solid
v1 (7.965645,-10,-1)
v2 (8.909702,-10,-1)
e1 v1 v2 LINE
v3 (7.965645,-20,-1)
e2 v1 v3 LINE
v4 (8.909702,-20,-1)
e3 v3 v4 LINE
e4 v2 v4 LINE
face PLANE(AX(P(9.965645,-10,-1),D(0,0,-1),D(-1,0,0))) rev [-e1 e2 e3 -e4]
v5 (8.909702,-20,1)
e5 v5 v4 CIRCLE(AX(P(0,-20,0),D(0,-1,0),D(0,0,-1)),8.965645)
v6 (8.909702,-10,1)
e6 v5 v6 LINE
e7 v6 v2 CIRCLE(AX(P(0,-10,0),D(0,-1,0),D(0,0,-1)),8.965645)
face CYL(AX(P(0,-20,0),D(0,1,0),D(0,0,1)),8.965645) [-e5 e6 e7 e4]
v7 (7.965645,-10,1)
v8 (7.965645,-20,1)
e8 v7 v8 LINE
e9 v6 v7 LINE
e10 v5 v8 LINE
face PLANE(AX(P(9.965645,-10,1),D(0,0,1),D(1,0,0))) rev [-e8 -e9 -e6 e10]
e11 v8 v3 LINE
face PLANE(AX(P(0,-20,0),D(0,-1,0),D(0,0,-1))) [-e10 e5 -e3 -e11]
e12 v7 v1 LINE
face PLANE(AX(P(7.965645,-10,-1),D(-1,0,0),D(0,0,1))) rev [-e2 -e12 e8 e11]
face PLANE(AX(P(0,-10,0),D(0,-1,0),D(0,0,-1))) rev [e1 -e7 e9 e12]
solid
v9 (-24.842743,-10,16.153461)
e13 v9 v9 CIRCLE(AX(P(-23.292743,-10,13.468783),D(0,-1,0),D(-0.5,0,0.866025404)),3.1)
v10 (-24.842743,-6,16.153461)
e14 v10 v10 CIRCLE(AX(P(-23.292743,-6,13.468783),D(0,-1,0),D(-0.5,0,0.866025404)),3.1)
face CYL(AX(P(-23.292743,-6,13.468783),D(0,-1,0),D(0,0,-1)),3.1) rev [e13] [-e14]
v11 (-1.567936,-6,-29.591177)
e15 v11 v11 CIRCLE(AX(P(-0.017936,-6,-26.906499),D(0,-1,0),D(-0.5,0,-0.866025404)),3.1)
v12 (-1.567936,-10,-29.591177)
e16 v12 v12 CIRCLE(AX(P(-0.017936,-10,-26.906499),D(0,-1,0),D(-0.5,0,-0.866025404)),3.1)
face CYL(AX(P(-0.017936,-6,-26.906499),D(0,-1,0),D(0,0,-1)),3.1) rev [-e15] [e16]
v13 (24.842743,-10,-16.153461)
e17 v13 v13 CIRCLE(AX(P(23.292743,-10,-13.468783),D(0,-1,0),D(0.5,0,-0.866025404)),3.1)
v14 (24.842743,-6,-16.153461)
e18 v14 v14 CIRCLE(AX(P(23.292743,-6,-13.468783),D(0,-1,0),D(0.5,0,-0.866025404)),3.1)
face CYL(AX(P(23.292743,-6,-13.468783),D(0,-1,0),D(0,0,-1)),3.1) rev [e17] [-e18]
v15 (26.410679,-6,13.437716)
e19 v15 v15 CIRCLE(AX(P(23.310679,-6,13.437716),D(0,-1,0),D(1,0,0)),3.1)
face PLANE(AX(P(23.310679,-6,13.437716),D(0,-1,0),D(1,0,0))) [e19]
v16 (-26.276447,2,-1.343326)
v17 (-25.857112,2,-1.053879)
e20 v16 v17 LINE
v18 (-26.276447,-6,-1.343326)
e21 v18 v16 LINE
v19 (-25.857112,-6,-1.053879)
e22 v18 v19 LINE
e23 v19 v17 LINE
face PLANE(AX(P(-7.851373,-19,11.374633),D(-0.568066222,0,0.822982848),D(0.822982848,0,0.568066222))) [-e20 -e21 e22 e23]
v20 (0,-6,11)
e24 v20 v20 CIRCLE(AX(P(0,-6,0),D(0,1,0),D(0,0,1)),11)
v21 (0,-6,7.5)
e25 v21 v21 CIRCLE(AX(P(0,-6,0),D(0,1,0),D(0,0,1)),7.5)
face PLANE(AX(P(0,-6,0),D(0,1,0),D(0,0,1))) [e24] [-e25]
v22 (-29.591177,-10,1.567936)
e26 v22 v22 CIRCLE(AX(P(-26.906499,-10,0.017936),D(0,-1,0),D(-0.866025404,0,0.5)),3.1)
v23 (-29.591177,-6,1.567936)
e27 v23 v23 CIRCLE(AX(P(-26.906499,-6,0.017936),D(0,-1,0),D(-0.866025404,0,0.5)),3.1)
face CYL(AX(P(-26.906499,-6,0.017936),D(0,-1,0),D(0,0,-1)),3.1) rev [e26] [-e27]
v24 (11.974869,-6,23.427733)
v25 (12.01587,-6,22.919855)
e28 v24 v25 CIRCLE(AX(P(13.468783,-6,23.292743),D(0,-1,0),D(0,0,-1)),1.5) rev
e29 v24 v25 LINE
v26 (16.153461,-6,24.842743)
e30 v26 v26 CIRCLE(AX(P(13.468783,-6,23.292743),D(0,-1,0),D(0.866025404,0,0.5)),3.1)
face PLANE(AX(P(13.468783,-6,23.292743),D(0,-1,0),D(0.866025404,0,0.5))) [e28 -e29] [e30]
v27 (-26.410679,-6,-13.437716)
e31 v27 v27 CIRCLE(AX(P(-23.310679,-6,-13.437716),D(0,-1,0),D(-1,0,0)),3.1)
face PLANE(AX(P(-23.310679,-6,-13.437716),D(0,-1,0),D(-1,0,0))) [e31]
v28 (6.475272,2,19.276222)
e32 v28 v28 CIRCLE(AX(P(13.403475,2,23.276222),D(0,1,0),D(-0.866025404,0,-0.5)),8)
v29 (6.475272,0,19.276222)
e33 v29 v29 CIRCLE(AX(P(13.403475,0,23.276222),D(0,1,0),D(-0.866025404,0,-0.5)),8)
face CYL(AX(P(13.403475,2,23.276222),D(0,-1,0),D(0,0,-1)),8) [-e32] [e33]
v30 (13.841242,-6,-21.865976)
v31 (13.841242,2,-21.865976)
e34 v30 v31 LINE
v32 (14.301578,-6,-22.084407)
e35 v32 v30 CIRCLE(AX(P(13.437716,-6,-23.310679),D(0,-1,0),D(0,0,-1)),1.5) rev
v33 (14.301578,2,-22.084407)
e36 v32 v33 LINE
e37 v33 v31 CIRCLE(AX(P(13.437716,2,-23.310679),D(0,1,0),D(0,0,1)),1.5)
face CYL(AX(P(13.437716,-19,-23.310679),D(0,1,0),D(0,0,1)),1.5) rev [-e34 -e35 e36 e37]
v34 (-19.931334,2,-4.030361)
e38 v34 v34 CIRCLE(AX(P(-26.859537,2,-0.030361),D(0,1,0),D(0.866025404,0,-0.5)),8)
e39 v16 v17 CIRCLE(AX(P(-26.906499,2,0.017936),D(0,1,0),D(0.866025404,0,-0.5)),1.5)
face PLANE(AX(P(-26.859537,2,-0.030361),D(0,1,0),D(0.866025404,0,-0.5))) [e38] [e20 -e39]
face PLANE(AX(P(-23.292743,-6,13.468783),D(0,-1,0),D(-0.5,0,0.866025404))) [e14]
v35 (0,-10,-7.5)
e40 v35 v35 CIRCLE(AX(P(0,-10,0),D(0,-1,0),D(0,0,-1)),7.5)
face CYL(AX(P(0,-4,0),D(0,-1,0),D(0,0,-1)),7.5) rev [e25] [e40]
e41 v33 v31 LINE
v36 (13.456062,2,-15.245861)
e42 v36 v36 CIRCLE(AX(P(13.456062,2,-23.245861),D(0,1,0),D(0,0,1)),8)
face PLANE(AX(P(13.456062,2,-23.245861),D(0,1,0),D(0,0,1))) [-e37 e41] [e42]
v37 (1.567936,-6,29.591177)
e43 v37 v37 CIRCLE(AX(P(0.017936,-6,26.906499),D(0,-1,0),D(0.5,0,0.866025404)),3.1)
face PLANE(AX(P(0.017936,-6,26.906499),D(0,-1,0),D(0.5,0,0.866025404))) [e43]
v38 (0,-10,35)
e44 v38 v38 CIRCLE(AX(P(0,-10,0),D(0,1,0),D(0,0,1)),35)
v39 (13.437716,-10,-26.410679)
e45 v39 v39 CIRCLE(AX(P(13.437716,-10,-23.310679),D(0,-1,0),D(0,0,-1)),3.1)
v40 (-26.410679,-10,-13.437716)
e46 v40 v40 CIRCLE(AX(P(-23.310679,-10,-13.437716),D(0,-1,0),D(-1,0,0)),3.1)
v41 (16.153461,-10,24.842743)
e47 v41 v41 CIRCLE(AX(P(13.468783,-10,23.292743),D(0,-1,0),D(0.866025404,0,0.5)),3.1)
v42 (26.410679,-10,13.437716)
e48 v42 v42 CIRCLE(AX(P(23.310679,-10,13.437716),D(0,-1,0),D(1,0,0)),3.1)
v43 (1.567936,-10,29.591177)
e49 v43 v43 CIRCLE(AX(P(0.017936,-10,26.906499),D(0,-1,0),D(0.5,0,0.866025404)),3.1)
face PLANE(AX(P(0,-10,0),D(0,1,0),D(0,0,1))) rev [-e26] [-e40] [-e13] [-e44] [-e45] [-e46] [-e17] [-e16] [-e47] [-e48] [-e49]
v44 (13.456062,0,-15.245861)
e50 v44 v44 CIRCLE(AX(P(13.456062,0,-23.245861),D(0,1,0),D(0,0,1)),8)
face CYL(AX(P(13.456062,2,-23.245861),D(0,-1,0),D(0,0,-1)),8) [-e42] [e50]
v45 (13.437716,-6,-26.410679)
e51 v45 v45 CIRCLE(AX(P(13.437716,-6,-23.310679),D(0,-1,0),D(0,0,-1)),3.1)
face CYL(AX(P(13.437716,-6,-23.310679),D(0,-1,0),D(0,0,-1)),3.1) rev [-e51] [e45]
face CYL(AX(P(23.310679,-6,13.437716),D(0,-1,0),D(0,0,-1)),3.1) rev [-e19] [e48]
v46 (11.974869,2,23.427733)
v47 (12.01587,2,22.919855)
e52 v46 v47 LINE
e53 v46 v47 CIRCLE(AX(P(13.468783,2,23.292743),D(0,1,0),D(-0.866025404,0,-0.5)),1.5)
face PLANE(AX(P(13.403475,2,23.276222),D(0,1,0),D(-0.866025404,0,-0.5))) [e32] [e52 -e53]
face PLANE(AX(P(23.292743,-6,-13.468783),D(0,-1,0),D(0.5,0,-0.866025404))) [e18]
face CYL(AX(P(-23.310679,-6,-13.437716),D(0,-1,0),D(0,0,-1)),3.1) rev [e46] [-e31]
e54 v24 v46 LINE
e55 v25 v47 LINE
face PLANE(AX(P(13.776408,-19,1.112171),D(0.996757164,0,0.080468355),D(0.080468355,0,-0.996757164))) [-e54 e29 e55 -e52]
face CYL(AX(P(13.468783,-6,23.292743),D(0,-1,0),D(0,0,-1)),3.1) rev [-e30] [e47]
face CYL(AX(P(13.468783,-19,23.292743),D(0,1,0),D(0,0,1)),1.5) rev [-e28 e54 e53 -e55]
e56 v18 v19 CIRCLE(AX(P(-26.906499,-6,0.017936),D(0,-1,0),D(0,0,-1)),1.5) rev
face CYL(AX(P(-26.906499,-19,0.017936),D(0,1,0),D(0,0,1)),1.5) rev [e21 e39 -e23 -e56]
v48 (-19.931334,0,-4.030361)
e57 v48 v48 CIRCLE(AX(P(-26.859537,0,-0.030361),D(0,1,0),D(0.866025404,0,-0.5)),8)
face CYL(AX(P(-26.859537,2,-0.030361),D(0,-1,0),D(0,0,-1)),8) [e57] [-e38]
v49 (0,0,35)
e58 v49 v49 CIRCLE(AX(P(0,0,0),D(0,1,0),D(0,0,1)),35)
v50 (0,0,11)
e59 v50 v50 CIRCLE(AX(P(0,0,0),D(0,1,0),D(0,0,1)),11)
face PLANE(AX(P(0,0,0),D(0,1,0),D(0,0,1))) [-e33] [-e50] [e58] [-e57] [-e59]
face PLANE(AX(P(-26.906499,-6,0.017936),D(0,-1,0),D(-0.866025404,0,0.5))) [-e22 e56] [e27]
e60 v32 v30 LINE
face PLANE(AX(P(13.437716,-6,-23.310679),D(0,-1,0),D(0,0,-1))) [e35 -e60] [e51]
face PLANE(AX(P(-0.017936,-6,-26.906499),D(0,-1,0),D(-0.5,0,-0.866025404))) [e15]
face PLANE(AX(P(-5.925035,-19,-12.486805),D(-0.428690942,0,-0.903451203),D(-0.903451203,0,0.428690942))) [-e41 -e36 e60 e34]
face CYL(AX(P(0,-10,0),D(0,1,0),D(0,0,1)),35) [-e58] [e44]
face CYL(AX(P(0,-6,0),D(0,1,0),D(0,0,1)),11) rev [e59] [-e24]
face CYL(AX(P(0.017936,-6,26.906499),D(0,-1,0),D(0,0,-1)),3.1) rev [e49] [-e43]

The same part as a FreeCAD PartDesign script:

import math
import FreeCAD as App
import Part
import Sketcher
Q = App.Units.Quantity

doc = App.newDocument("Part")
body = doc.addObject("PartDesign::Body", "Body")

# Sketch on XZ plane
sketch1 = body.newObject("Sketcher::SketchObject", "Sketch")
sketch1.AttachmentSupport = (doc.getObject("XZ_Plane"), [""])
sketch1.MapMode = "FlatFace"
sketch1.addGeometry(Part.Circle(App.Vector(0, 0, 0), App.Vector(0, 0, 1), 35), False)
sketch1.addConstraint(Sketcher.Constraint("Coincident", 0, 3, -1, 1))
sketch1.addConstraint(Sketcher.Constraint("Diameter", 0, Q("70 mm")))
pad1 = body.newObject("PartDesign::Pad", "Pad")
pad1.Profile = sketch1
pad1.Length = 10

# Sketch on XZ plane
sketch2 = body.newObject("Sketcher::SketchObject", "Sketch001")
sketch2.AttachmentSupport = (doc.getObject("XZ_Plane"), [""])
sketch2.MapMode = "FlatFace"
sketch2.addGeometry(Part.Circle(App.Vector(0, 0, 0), App.Vector(0, 0, 1), 11), False)
sketch2.addConstraint(Sketcher.Constraint("Coincident", 0, 3, -1, 1))
sketch2.addConstraint(Sketcher.Constraint("Diameter", 0, Q("22 mm")))
pocket1 = body.newObject("PartDesign::Pocket", "Pocket")
pocket1.Profile = sketch2
pocket1.Length = 6
pocket1.Reversed = True

# Sketch on XZ plane
sketch3 = body.newObject("Sketcher::SketchObject", "Sketch002")
sketch3.AttachmentSupport = (doc.getObject("XZ_Plane"), [""])
sketch3.MapMode = "FlatFace"
sketch3.AttachmentOffset = App.Placement(App.Vector(0, 0, 10), App.Rotation())
sketch3.addGeometry(Part.Circle(App.Vector(0, 0, 0), App.Vector(0, 0, 1), 8), False)
sketch3.addConstraint(Sketcher.Constraint("Coincident", 0, 3, -1, 1))
sketch3.addConstraint(Sketcher.Constraint("Diameter", 0, Q("15 mm")))
pocket2 = body.newObject("PartDesign::Pocket", "Pocket001")
pocket2.Profile = sketch3
pocket2.Length = 6

# Sketch on XZ plane
sketch4 = body.newObject("Sketcher::SketchObject", "Sketch003")
sketch4.AttachmentSupport = (doc.getObject("XZ_Plane"), [""])
sketch4.MapMode = "FlatFace"
sketch4.addGeometry(Part.Circle(App.Vector(13, -23, 0), App.Vector(0, 0, 1), 8), False)
sketch4.addConstraint(Sketcher.Constraint("Diameter", 0, Q("16 mm")))
sketch4.addConstraint(Sketcher.Constraint("DistanceY", 0, 3, -1, 1, Q("23.245861 mm")))
sketch4.addConstraint(Sketcher.Constraint("DistanceX", -1, 1, 0, 3, Q("13.456062 mm")))
pad2 = body.newObject("PartDesign::Pad", "Pad001")
pad2.Profile = sketch4
pad2.Length = 2
pad2.Reversed = True

# Sketch on XZ plane
sketch5 = body.newObject("Sketcher::SketchObject", "Sketch004")
sketch5.AttachmentSupport = (doc.getObject("XZ_Plane"), [""])
sketch5.MapMode = "FlatFace"
sketch5.AttachmentOffset = App.Placement(App.Vector(0, 0, -2), App.Rotation())
sketch5.addGeometry(Part.LineSegment(App.Vector(13.8, -21.9, 0), App.Vector(14.3, -22.1, 0)), False)
sketch5.addGeometry(Part.ArcOfCircle(Part.Circle(App.Vector(13.4, -23.3, 0), App.Vector(0, 0, 1), 1.5), math.radians(0), math.radians(55)), False)
sketch5.addGeometry(Part.ArcOfCircle(Part.Circle(App.Vector(13.4, -23.3, 0), App.Vector(0, 0, 1), 1.5), math.radians(74), math.radians(360)), False)
sketch5.addConstraint(Sketcher.Constraint("Coincident", 0, 2, 1, 2))
sketch5.addConstraint(Sketcher.Constraint("Tangent", 1, 1, 2, 2))
sketch5.addConstraint(Sketcher.Constraint("Coincident", 2, 1, 0, 1))
sketch5.addConstraint(Sketcher.Constraint("Equal", 1, 2))
sketch5.addConstraint(Sketcher.Constraint("Horizontal", 2, 3, 1, 1))
sketch5.addConstraint(Sketcher.Constraint("Radius", 1, Q("1.5 mm")))
sketch5.addConstraint(Sketcher.Constraint("Distance", 0, Q("0.50953 mm")))
sketch5.addConstraint(Sketcher.Constraint("DistanceY", 1, 3, -1, 1, Q("23.310679 mm")))
sketch5.addConstraint(Sketcher.Constraint("DistanceX", -1, 1, 2, 1, Q("13.841242 mm")))
sketch5.addConstraint(Sketcher.Constraint("DistanceX", 1, 3, 0, 2, Q("0.863862 mm")))
pocket3 = body.newObject("PartDesign::Pocket", "Pocket002")
pocket3.Profile = sketch5
pocket3.Length = 21
pocket3.Reversed = True

# Sketch on XZ plane
sketch6 = body.newObject("Sketcher::SketchObject", "Sketch005")
sketch6.AttachmentSupport = (doc.getObject("XZ_Plane"), [""])
sketch6.MapMode = "FlatFace"
sketch6.AttachmentOffset = App.Placement(App.Vector(0, 0, 10), App.Rotation())
sketch6.addGeometry(Part.Circle(App.Vector(13.4, -23.3, 0), App.Vector(0, 0, 1), 3.1), False)
sketch6.addConstraint(Sketcher.Constraint("Diameter", 0, Q("6.2 mm")))
sketch6.addConstraint(Sketcher.Constraint("DistanceY", 0, 3, -1, 1, Q("23.310679 mm")))
sketch6.addConstraint(Sketcher.Constraint("DistanceX", -1, 1, 0, 3, Q("13.437716 mm")))
pocket4 = body.newObject("PartDesign::Pocket", "Pocket003")
pocket4.Profile = sketch6
pocket4.Length = 4
doc.recompute()

polarpattern = body.newObject("PartDesign::PolarPattern", "PolarPattern")
polarpattern.Originals = [pad2]
polarpattern.Axis = (doc.getObject("Y_Axis"), [""])
polarpattern.Angle = 360
polarpattern.Occurrences = 3
body.Tip = polarpattern
doc.recompute()

polarpattern2 = body.newObject("PartDesign::PolarPattern", "PolarPattern001")
polarpattern2.Originals = [pocket3]
polarpattern2.Axis = (doc.getObject("Y_Axis"), [""])
polarpattern2.Angle = 360
polarpattern2.Occurrences = 3
body.Tip = polarpattern2
doc.recompute()

polarpattern3 = body.newObject("PartDesign::PolarPattern", "PolarPattern002")
polarpattern3.Originals = [pocket4]
polarpattern3.Axis = (doc.getObject("Y_Axis"), [""])
polarpattern3.Angle = 30
polarpattern3.Occurrences = 2
body.Tip = polarpattern3
doc.recompute()

polarpattern4 = body.newObject("PartDesign::PolarPattern", "PolarPattern003")
polarpattern4.Originals = [pocket4]
polarpattern4.Axis = (doc.getObject("Y_Axis"), [""])
polarpattern4.Angle = 30
polarpattern4.Occurrences = 2
polarpattern4.Reversed = True
body.Tip = polarpattern4
doc.recompute()

polarpattern5 = body.newObject("PartDesign::PolarPattern", "PolarPattern004")
polarpattern5.Originals = [pocket4]
polarpattern5.Axis = (doc.getObject("Y_Axis"), [""])
polarpattern5.Angle = 360
polarpattern5.Occurrences = 3
body.Tip = polarpattern5

# Sketch on XZ plane
sketch7 = body.newObject("Sketcher::SketchObject", "Sketch006")
sketch7.AttachmentSupport = (doc.getObject("XZ_Plane"), [""])
sketch7.MapMode = "FlatFace"
sketch7.AttachmentOffset = App.Placement(App.Vector(0, 0, 10), App.Rotation())
sketch7.addGeometry(Part.Circle(App.Vector(-23.3, 13.5, 0), App.Vector(0, 0, 1), 3.1), False)
sketch7.addConstraint(Sketcher.Constraint("Diameter", 0, Q("6.2 mm")))
sketch7.addConstraint(Sketcher.Constraint("DistanceX", 0, 3, -1, 1, Q("23.292743 mm")))
sketch7.addConstraint(Sketcher.Constraint("DistanceY", -1, 1, 0, 3, Q("13.468783 mm")))
pocket5 = body.newObject("PartDesign::Pocket", "Pocket004")
pocket5.Profile = sketch7
pocket5.Length = 4

# Sketch on XZ plane
sketch8 = body.newObject("Sketcher::SketchObject", "Sketch007")
sketch8.AttachmentSupport = (doc.getObject("XZ_Plane"), [""])
sketch8.MapMode = "FlatFace"
sketch8.AttachmentOffset = App.Placement(App.Vector(0, 0, 10), App.Rotation())
sketch8.addGeometry(Part.Circle(App.Vector(23.3, 13.4, 0), App.Vector(0, 0, 1), 3.1), False)
sketch8.addConstraint(Sketcher.Constraint("Diameter", 0, Q("6.2 mm")))
sketch8.addConstraint(Sketcher.Constraint("DistanceX", -1, 1, 0, 3, Q("23.310679 mm")))
sketch8.addConstraint(Sketcher.Constraint("DistanceY", -1, 1, 0, 3, Q("13.437716 mm")))
pocket6 = body.newObject("PartDesign::Pocket", "Pocket005")
pocket6.Profile = sketch8
pocket6.Length = 4

# Sketch on XZ plane
sketch9 = body.newObject("Sketcher::SketchObject", "Sketch008")
sketch9.AttachmentSupport = (doc.getObject("XZ_Plane"), [""])
sketch9.MapMode = "FlatFace"
sketch9.AttachmentOffset = App.Placement(App.Vector(0, 0, 10), App.Rotation())
sketch9.addGeometry(Part.Circle(App.Vector(-23.3, -13.4, 0), App.Vector(0, 0, 1), 3.1), False)
sketch9.addConstraint(Sketcher.Constraint("Diameter", 0, Q("6.2 mm")))
sketch9.addConstraint(Sketcher.Constraint("DistanceX", 0, 3, -1, 1, Q("23.310679 mm")))
sketch9.addConstraint(Sketcher.Constraint("DistanceY", 0, 3, -1, 1, Q("13.437716 mm")))
pocket7 = body.newObject("PartDesign::Pocket", "Pocket006")
pocket7.Profile = sketch9
pocket7.Length = 4

# Sketch on XZ plane
sketch10 = body.newObject("Sketcher::SketchObject", "Sketch009")
sketch10.AttachmentSupport = (doc.getObject("XZ_Plane"), [""])
sketch10.MapMode = "FlatFace"
sketch10.AttachmentOffset = App.Placement(App.Vector(0, 0, 10), App.Rotation())
sketch10.addGeometry(Part.Circle(App.Vector(0, 26.9, 0), App.Vector(0, 0, 1), 3.1), False)
sketch10.addConstraint(Sketcher.Constraint("Diameter", 0, Q("6.2 mm")))
sketch10.addConstraint(Sketcher.Constraint("DistanceY", -1, 1, 0, 3, Q("26.906499 mm")))
sketch10.addConstraint(Sketcher.Constraint("DistanceX", -1, 1, 0, 3, Q("0.017936 mm")))
pocket8 = body.newObject("PartDesign::Pocket", "Pocket007")
pocket8.Profile = sketch10
pocket8.Length = 4
body2 = doc.addObject("PartDesign::Body", "Body001")

# Sketch on XZ plane
sketch11 = body2.newObject("Sketcher::SketchObject", "Sketch010")
sketch11.AttachmentSupport = (doc.getObject("XZ_Plane001"), [""])
sketch11.MapMode = "FlatFace"
sketch11.AttachmentOffset = App.Placement(App.Vector(0, 0, 10), App.Rotation())
sketch11.addGeometry(Part.Circle(App.Vector(0, 0, 0), App.Vector(0, 0, 1), 9), False)
sketch11.addConstraint(Sketcher.Constraint("Coincident", 0, 3, -1, 1))
sketch11.addConstraint(Sketcher.Constraint("Diameter", 0, Q("17.931291 mm")))
pad3 = body2.newObject("PartDesign::Pad", "Pad002")
pad3.Profile = sketch11
pad3.Length = 10

# Sketch on XZ plane
sketch12 = body2.newObject("Sketcher::SketchObject", "Sketch011")
sketch12.AttachmentSupport = (doc.getObject("XZ_Plane001"), [""])
sketch12.MapMode = "FlatFace"
sketch12.AttachmentOffset = App.Placement(App.Vector(0, 0, 20), App.Rotation())
sketch12.addGeometry(Part.LineSegment(App.Vector(8, 1, 0), App.Vector(8, -1, 0)), False)
sketch12.addGeometry(Part.LineSegment(App.Vector(8, -1, 0), App.Vector(10, -1, 0)), False)
sketch12.addGeometry(Part.LineSegment(App.Vector(10, -1, 0), App.Vector(10, 1, 0)), False)
sketch12.addGeometry(Part.LineSegment(App.Vector(10, 1, 0), App.Vector(8, 1, 0)), False)
sketch12.addConstraint(Sketcher.Constraint("Coincident", 0, 2, 1, 1))
sketch12.addConstraint(Sketcher.Constraint("Coincident", 1, 2, 2, 1))
sketch12.addConstraint(Sketcher.Constraint("Coincident", 2, 2, 3, 1))
sketch12.addConstraint(Sketcher.Constraint("Coincident", 3, 2, 0, 1))
sketch12.addConstraint(Sketcher.Constraint("Vertical", 0))
sketch12.addConstraint(Sketcher.Constraint("Horizontal", 1))
sketch12.addConstraint(Sketcher.Constraint("Vertical", 2))
sketch12.addConstraint(Sketcher.Constraint("Horizontal", 3))
sketch12.addConstraint(Sketcher.Constraint("Equal", 3, 0))
sketch12.addConstraint(Sketcher.Constraint("DistanceX", 1, 1, 1, 2, Q("2 mm")))
sketch12.addConstraint(Sketcher.Constraint("DistanceY", 0, 2, -1, 1, Q("1 mm")))
sketch12.addConstraint(Sketcher.Constraint("DistanceX", -1, 1, 0, 2, Q("7.965645 mm")))
pocket9 = body2.newObject("PartDesign::Pocket", "Pocket008")
pocket9.Profile = sketch12
pocket9.Length = 10

doc.recompute()
